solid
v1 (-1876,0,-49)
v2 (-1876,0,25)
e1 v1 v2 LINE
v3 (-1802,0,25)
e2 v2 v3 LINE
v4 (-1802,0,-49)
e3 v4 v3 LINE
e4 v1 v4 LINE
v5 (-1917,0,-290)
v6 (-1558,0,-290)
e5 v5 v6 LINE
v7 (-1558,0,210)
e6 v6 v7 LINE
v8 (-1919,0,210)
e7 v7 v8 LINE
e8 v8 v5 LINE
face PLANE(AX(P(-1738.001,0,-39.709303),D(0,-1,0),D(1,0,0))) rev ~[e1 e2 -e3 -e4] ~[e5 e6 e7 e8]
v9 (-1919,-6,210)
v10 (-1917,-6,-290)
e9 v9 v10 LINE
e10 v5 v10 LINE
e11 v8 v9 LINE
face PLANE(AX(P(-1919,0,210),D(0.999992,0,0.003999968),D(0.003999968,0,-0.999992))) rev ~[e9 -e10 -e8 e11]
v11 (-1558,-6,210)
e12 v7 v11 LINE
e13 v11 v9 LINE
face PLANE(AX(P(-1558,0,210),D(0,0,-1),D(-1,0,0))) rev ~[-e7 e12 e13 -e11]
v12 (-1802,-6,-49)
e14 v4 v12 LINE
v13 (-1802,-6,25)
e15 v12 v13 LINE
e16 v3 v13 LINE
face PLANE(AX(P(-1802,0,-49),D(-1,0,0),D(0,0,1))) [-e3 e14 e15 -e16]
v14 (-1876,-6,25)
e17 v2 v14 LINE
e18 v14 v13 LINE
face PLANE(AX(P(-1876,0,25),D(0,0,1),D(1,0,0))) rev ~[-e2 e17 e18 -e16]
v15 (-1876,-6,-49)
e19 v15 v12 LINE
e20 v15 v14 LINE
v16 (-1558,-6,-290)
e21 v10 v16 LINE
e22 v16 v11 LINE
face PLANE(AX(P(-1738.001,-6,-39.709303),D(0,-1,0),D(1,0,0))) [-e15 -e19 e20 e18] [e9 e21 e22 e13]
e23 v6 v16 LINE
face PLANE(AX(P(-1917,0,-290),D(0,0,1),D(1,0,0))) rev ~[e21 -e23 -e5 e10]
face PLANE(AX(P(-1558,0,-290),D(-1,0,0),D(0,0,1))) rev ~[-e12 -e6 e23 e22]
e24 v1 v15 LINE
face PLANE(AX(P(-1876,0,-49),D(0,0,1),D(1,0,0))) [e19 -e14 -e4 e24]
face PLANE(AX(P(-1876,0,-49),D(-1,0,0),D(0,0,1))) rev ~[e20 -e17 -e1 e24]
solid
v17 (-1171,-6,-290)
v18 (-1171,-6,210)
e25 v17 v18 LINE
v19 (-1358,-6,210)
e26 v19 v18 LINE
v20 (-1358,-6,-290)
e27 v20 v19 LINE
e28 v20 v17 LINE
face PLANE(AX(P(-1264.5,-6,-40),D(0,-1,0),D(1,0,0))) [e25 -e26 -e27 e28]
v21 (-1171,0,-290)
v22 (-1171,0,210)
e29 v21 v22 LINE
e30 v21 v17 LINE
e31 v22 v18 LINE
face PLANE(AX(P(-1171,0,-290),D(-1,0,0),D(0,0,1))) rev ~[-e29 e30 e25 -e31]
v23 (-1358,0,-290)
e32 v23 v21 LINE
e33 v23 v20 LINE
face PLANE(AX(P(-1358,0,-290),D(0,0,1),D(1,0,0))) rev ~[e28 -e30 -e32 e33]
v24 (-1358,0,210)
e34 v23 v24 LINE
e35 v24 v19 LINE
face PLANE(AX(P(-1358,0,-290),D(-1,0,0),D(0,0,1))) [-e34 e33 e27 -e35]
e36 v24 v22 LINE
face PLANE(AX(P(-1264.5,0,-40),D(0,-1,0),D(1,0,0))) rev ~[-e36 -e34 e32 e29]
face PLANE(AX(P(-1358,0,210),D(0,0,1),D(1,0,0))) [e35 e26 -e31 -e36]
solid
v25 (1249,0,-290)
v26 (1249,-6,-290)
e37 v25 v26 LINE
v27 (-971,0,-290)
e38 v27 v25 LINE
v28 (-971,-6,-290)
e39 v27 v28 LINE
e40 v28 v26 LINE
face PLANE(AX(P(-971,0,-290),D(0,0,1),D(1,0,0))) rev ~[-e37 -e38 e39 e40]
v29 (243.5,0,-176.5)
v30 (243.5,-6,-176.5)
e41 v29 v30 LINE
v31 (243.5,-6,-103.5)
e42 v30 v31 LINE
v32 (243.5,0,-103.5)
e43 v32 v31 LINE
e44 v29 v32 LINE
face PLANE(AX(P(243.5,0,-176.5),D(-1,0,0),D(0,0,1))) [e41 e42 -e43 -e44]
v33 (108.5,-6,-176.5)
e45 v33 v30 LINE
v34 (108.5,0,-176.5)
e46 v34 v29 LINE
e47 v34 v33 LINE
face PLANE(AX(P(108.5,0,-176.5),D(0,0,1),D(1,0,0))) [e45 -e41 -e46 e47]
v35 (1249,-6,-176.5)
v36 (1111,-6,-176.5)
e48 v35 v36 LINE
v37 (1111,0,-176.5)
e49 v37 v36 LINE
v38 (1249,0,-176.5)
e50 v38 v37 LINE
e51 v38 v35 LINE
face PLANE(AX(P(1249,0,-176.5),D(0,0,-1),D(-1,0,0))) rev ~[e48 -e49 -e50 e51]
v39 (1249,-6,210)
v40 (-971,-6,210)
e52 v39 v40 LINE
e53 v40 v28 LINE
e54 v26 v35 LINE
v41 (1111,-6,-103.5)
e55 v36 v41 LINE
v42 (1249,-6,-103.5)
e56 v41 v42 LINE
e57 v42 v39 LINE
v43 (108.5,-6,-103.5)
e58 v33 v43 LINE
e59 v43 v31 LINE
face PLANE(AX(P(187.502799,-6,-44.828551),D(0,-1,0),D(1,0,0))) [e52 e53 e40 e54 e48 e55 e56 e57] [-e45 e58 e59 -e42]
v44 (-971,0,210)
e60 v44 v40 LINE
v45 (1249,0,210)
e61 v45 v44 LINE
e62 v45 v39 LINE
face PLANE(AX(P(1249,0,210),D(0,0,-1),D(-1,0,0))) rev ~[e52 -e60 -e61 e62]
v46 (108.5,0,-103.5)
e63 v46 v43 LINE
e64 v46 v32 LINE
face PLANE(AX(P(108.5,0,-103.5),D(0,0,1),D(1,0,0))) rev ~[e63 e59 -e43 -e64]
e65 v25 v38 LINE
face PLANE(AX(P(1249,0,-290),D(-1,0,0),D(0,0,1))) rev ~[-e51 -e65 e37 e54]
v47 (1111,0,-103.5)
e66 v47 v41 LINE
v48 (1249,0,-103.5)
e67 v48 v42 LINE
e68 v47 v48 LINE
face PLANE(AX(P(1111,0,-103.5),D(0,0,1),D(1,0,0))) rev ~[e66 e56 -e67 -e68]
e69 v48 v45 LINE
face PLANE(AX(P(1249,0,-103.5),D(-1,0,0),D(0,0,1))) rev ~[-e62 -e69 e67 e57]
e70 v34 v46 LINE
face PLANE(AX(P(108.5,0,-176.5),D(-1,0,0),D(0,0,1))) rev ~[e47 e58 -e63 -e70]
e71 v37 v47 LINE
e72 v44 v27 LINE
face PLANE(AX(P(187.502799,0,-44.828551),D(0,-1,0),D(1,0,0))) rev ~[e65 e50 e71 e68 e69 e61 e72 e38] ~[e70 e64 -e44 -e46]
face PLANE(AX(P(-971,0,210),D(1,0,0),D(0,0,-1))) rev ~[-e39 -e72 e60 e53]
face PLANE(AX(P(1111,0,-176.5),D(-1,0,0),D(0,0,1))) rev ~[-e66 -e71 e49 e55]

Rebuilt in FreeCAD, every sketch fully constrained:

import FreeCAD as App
import Part
import Sketcher


def add_polygon(sketch, points):
    """Adds a closed chain of lines whose ends are joined by coincident constraints."""
    first, n = sketch.GeometryCount, len(points)
    for a, b in zip(points, points[1:] + points[:1]):
        sketch.addGeometry(Part.LineSegment(App.Vector(*a, 0), App.Vector(*b, 0)), False)
    for i in range(n):
        sketch.addConstraint(Sketcher.Constraint("Coincident", first + i, 2, first + (i + 1) % n, 1))

doc = App.newDocument("Part")
body = doc.addObject("PartDesign::Body", "Body")

# Sketch on XZ plane
sketch1 = body.newObject("Sketcher::SketchObject", "Sketch")
sketch1.AttachmentSupport = (doc.getObject("XZ_Plane"), [""])
sketch1.MapMode = "FlatFace"
add_polygon(sketch1, [(1249, 210), (-971, 210), (-971, -290), (1249, -290), (1249, -176), (1111, -176), (1111, -104), (1249, -104)])  # lines 0-7
add_polygon(sketch1, [(244, -176), (108, -176), (108, -104), (244, -104)])  # lines 8-11
sketch1.addConstraint(Sketcher.Constraint("Horizontal", 0))
sketch1.addConstraint(Sketcher.Constraint("Vertical", 1))
sketch1.addConstraint(Sketcher.Constraint("Horizontal", 2))
sketch1.addConstraint(Sketcher.Constraint("Vertical", 3))
sketch1.addConstraint(Sketcher.Constraint("Horizontal", 4))
sketch1.addConstraint(Sketcher.Constraint("Vertical", 5))
sketch1.addConstraint(Sketcher.Constraint("Horizontal", 6))
sketch1.addConstraint(Sketcher.Constraint("Vertical", 7))
sketch1.addConstraint(Sketcher.Constraint("Horizontal", 8))
sketch1.addConstraint(Sketcher.Constraint("Vertical", 9))
sketch1.addConstraint(Sketcher.Constraint("Horizontal", 10))
sketch1.addConstraint(Sketcher.Constraint("Vertical", 11))
sketch1.addConstraint(Sketcher.Constraint("Horizontal", 4, 2, 8, 2))
sketch1.addConstraint(Sketcher.Constraint("Horizontal", 6, 2, 9, 2))
sketch1.addConstraint(Sketcher.Constraint("Vertical", 3, 2, 6, 2))
sketch1.addConstraint(Sketcher.Constraint("DistanceX", 0, 2, 0, 1, 2220.0))
sketch1.addConstraint(Sketcher.Constraint("DistanceX", 4, 2, 4, 1, 138.0))
sketch1.addConstraint(Sketcher.Constraint("DistanceX", 8, 2, 8, 1, 135.0))
sketch1.addConstraint(Sketcher.Constraint("DistanceY", 1, 2, 1, 1, 500.0))
sketch1.addConstraint(Sketcher.Constraint("DistanceY", 5, 1, 5, 2, 73.0))
sketch1.addConstraint(Sketcher.Constraint("DistanceY", 3, 1, 3, 2, 113.5))
sketch1.addConstraint(Sketcher.Constraint("DistanceX", 0, 2, -1, 1, 971.0))
sketch1.addConstraint(Sketcher.Constraint("DistanceY", -1, 1, 0, 2, 210.0))
sketch1.addConstraint(Sketcher.Constraint("DistanceX", -1, 1, 8, 2, 108.5))
pad1 = body.newObject("PartDesign::Pad", "Pad")
pad1.Profile = sketch1
pad1.Length = 6
body2 = doc.addObject("PartDesign::Body", "Body001")

# Sketch on XZ plane
sketch2 = body2.newObject("Sketcher::SketchObject", "Sketch001")
sketch2.AttachmentSupport = (doc.getObject("XZ_Plane001"), [""])
sketch2.MapMode = "FlatFace"
add_polygon(sketch2, [(-1358, 210), (-1358, -290), (-1171, -290), (-1171, 210)])  # lines 0-3
sketch2.addConstraint(Sketcher.Constraint("Vertical", 0))
sketch2.addConstraint(Sketcher.Constraint("Horizontal", 1))
sketch2.addConstraint(Sketcher.Constraint("Vertical", 2))
sketch2.addConstraint(Sketcher.Constraint("Horizontal", 3))
sketch2.addConstraint(Sketcher.Constraint("DistanceX", 1, 1, 1, 2, 187.0))
sketch2.addConstraint(Sketcher.Constraint("DistanceY", 0, 2, 0, 1, 500.0))
sketch2.addConstraint(Sketcher.Constraint("DistanceX", 0, 2, -1, 1, 1358.0))
sketch2.addConstraint(Sketcher.Constraint("DistanceY", 0, 2, -1, 1, 290.0))
pad2 = body2.newObject("PartDesign::Pad", "Pad001")
pad2.Profile = sketch2
pad2.Length = 6
body3 = doc.addObject("PartDesign::Body", "Body002")

# Sketch on XZ plane
sketch3 = body3.newObject("Sketcher::SketchObject", "Sketch002")
sketch3.AttachmentSupport = (doc.getObject("XZ_Plane002"), [""])
sketch3.MapMode = "FlatFace"
add_polygon(sketch3, [(-1917, -290), (-1558, -290), (-1558, 210), (-1919, 210)])  # lines 0-3
add_polygon(sketch3, [(-1802, -49), (-1876, -49), (-1876, 25), (-1802, 25)])  # lines 4-7
sketch3.addConstraint(Sketcher.Constraint("Horizontal", 0))
sketch3.addConstraint(Sketcher.Constraint("Vertical", 1))
sketch3.addConstraint(Sketcher.Constraint("Horizontal", 2))
sketch3.addConstraint(Sketcher.Constraint("Horizontal", 4))
sketch3.addConstraint(Sketcher.Constraint("Vertical", 5))
sketch3.addConstraint(Sketcher.Constraint("Horizontal", 6))
sketch3.addConstraint(Sketcher.Constraint("Vertical", 7))
sketch3.addConstraint(Sketcher.Constraint("Equal", 6, 5))
sketch3.addConstraint(Sketcher.Constraint("DistanceX", 0, 1, 0, 2, 359.0))
sketch3.addConstraint(Sketcher.Constraint("DistanceX", 2, 2, 2, 1, 361.0))
sketch3.addConstraint(Sketcher.Constraint("DistanceX", 4, 2, 4, 1, 74.0))
sketch3.addConstraint(Sketcher.Constraint("DistanceY", 1, 1, 1, 2, 500.0))
sketch3.addConstraint(Sketcher.Constraint("DistanceX", 0, 2, -1, 1, 1558.0))
sketch3.addConstraint(Sketcher.Constraint("DistanceY", 0, 2, -1, 1, 290.0))
sketch3.addConstraint(Sketcher.Constraint("DistanceX", 4, 2, -1, 1, 1876.0))
sketch3.addConstraint(Sketcher.Constraint("DistanceY", 4, 2, -1, 1, 49.0))
pad3 = body3.newObject("PartDesign::Pad", "Pad002")
pad3.Profile = sketch3
pad3.Length = 6

doc.recompute()
